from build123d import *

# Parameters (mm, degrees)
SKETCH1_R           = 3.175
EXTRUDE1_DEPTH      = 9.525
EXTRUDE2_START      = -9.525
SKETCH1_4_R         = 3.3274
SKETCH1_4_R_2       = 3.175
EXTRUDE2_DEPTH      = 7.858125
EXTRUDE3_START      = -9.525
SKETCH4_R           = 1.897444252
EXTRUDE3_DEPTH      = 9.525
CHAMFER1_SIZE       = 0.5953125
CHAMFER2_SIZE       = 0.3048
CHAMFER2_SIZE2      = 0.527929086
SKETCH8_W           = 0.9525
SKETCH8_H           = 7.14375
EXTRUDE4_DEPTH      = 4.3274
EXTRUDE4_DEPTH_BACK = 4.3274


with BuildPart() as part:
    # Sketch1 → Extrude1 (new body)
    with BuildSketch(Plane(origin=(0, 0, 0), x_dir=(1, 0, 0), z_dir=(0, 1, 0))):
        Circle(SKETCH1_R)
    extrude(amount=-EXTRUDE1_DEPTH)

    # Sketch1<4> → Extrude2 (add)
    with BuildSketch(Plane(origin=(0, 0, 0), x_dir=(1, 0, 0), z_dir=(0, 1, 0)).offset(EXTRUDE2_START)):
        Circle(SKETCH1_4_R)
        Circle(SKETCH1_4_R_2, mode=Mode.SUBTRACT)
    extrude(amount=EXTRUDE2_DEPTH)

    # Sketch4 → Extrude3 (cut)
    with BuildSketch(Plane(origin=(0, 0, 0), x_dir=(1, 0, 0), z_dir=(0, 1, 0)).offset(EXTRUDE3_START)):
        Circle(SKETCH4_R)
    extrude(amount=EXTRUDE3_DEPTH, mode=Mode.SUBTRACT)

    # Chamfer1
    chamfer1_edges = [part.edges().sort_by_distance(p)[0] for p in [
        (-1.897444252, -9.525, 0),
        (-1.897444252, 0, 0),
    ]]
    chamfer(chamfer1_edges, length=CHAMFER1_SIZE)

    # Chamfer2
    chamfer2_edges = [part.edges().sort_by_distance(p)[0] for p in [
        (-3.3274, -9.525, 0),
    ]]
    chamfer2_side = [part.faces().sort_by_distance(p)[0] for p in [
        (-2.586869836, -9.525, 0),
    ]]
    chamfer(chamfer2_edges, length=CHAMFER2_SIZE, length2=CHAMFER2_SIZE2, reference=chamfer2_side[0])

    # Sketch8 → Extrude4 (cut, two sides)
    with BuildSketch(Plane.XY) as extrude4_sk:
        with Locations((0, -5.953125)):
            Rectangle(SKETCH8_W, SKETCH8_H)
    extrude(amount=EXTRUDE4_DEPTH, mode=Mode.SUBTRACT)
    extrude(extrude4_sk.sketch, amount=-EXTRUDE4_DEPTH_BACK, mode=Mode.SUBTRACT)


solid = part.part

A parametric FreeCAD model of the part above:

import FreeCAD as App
import Part
import Sketcher

V = App.Vector
Q = App.Units.Quantity


def edges_at(feature, points):
    """Names of the edges that pass closest to the given points."""
    edges = feature.Shape.Edges
    near = lambda p: min(range(len(edges)), key=lambda i: edges[i].distToShape(Part.Vertex(*p))[0])
    return sorted({f"Edge{near(p) + 1}" for p in points})

doc = App.newDocument("Part")
body = doc.addObject("PartDesign::Body", "Body")

sketch1 = doc.addObject("Sketcher::SketchObject", "Sketch")
body.addObject(sketch1)
sketch1.AttachmentSupport = (doc.XZ_Plane, [""])
sketch1.MapMode = "FlatFace"
sketch1.addGeometry(Part.Circle(V(0, 0, 0), V(0, 0, 1), 3.2), False)
sketch1.addConstraint(Sketcher.Constraint("Coincident", 0, 3, -1, 1))
sketch1.addConstraint(Sketcher.Constraint("Diameter", 0, Q("0.25 in")))
pad1 = doc.addObject("PartDesign::Pad", "Pad")
body.addObject(pad1)
pad1.Profile = sketch1
pad1.Length = Q("0.375 in")

sketch2 = doc.addObject("Sketcher::SketchObject", "Sketch001")
body.addObject(sketch2)
sketch2.AttachmentSupport = (doc.XZ_Plane, [""])
sketch2.MapMode = "FlatFace"
sketch2.AttachmentOffset = App.Placement(V(0, 0, 0.375 * 25.4), App.Rotation())
sketch2.addGeometry(Part.Circle(V(0, 0, 0), V(0, 0, 1), 3.3), False)
sketch2.addGeometry(Part.Circle(V(0, 0, 0), V(0, 0, 1), 3.2), False)
sketch2.addConstraint(Sketcher.Constraint("Coincident", 0, 3, -1, 1))
sketch2.addConstraint(Sketcher.Constraint("Coincident", 1, 3, -1, 1))
sketch2.addConstraint(Sketcher.Constraint("Diameter", 1, Q("0.25 in")))
sketch2.addConstraint(Sketcher.Constraint("Diameter", 0, Q("0.262 in")))
pad2 = doc.addObject("PartDesign::Pad", "Pad001")
body.addObject(pad2)
pad2.Profile = sketch2
pad2.Length = 7.858125
pad2.Reversed = True

sketch3 = doc.addObject("Sketcher::SketchObject", "Sketch002")
body.addObject(sketch3)
sketch3.AttachmentSupport = (doc.XZ_Plane, [""])
sketch3.MapMode = "FlatFace"
sketch3.AttachmentOffset = App.Placement(V(0, 0, 0.375 * 25.4), App.Rotation())
sketch3.addGeometry(Part.Circle(V(0, 0, 0), V(0, 0, 1), 1.9), False)
sketch3.addConstraint(Sketcher.Constraint("Coincident", 0, 3, -1, 1))
sketch3.addConstraint(Sketcher.Constraint("Diameter", 0, 3.794889))
pocket1 = doc.addObject("PartDesign::Pocket", "Pocket")
body.addObject(pocket1)
pocket1.Profile = sketch3
pocket1.Length = Q("0.375 in")
doc.recompute()

chamfer = doc.addObject("PartDesign::Chamfer", "Chamfer")
body.addObject(chamfer)
chamfer.Base = (pocket1, edges_at(pocket1, [(-1.897, -9.525, 0), (-1.897, 0, 0)]))
chamfer.Size = 0.595313
doc.recompute()

chamfer2 = doc.addObject("PartDesign::Chamfer", "Chamfer001")
body.addObject(chamfer2)
chamfer2.Base = (chamfer, edges_at(chamfer, [(-3.327, -9.525, 0)]))
chamfer2.ChamferType = "Two distances"
chamfer2.Size = Q("0.012 in")
chamfer2.Size2 = 0.527929
chamfer2.FlipDirection = True

sketch4 = doc.addObject("Sketcher::SketchObject", "Sketch003")
body.addObject(sketch4)
sketch4.AttachmentSupport = (doc.XY_Plane, [""])
sketch4.MapMode = "FlatFace"
sketch4.addGeometry(Part.LineSegment(V(-0.5, -2.4, 0), V(-0.5, -9.5, 0)), False)
sketch4.addGeometry(Part.LineSegment(V(-0.5, -9.5, 0), V(0.5, -9.5, 0)), False)
sketch4.addGeometry(Part.LineSegment(V(0.5, -9.5, 0), V(0.5, -2.4, 0)), False)
sketch4.addGeometry(Part.LineSegment(V(0.5, -2.4, 0), V(-0.5, -2.4, 0)), False)
sketch4.addConstraint(Sketcher.Constraint("Coincident", 0, 2, 1, 1))
sketch4.addConstraint(Sketcher.Constraint("Coincident", 1, 2, 2, 1))
sketch4.addConstraint(Sketcher.Constraint("Coincident", 2, 2, 3, 1))
sketch4.addConstraint(Sketcher.Constraint("Coincident", 3, 2, 0, 1))
sketch4.addConstraint(Sketcher.Constraint("Vertical", 0))
sketch4.addConstraint(Sketcher.Constraint("Horizontal", 1))
sketch4.addConstraint(Sketcher.Constraint("Vertical", 2))
sketch4.addConstraint(Sketcher.Constraint("Horizontal", 3))
sketch4.addConstraint(Sketcher.Constraint("DistanceY", 0, 2, 0, 1, Q("0.28125 in")))
sketch4.addConstraint(Sketcher.Constraint("DistanceX", 1, 1, 1, 2, Q("0.0375 in")))
sketch4.addConstraint(Sketcher.Constraint("DistanceY", 0, 2, -1, 1, Q("0.375 in")))
sketch4.addConstraint(Sketcher.Constraint("DistanceX", 0, 2, -1, 1, 0.47625))
pocket2 = doc.addObject("PartDesign::Pocket", "Pocket001")
body.addObject(pocket2)
pocket2.Profile = sketch4
pocket2.Type = "ThroughAll"
pocket2.Midplane = True

doc.recompute()
